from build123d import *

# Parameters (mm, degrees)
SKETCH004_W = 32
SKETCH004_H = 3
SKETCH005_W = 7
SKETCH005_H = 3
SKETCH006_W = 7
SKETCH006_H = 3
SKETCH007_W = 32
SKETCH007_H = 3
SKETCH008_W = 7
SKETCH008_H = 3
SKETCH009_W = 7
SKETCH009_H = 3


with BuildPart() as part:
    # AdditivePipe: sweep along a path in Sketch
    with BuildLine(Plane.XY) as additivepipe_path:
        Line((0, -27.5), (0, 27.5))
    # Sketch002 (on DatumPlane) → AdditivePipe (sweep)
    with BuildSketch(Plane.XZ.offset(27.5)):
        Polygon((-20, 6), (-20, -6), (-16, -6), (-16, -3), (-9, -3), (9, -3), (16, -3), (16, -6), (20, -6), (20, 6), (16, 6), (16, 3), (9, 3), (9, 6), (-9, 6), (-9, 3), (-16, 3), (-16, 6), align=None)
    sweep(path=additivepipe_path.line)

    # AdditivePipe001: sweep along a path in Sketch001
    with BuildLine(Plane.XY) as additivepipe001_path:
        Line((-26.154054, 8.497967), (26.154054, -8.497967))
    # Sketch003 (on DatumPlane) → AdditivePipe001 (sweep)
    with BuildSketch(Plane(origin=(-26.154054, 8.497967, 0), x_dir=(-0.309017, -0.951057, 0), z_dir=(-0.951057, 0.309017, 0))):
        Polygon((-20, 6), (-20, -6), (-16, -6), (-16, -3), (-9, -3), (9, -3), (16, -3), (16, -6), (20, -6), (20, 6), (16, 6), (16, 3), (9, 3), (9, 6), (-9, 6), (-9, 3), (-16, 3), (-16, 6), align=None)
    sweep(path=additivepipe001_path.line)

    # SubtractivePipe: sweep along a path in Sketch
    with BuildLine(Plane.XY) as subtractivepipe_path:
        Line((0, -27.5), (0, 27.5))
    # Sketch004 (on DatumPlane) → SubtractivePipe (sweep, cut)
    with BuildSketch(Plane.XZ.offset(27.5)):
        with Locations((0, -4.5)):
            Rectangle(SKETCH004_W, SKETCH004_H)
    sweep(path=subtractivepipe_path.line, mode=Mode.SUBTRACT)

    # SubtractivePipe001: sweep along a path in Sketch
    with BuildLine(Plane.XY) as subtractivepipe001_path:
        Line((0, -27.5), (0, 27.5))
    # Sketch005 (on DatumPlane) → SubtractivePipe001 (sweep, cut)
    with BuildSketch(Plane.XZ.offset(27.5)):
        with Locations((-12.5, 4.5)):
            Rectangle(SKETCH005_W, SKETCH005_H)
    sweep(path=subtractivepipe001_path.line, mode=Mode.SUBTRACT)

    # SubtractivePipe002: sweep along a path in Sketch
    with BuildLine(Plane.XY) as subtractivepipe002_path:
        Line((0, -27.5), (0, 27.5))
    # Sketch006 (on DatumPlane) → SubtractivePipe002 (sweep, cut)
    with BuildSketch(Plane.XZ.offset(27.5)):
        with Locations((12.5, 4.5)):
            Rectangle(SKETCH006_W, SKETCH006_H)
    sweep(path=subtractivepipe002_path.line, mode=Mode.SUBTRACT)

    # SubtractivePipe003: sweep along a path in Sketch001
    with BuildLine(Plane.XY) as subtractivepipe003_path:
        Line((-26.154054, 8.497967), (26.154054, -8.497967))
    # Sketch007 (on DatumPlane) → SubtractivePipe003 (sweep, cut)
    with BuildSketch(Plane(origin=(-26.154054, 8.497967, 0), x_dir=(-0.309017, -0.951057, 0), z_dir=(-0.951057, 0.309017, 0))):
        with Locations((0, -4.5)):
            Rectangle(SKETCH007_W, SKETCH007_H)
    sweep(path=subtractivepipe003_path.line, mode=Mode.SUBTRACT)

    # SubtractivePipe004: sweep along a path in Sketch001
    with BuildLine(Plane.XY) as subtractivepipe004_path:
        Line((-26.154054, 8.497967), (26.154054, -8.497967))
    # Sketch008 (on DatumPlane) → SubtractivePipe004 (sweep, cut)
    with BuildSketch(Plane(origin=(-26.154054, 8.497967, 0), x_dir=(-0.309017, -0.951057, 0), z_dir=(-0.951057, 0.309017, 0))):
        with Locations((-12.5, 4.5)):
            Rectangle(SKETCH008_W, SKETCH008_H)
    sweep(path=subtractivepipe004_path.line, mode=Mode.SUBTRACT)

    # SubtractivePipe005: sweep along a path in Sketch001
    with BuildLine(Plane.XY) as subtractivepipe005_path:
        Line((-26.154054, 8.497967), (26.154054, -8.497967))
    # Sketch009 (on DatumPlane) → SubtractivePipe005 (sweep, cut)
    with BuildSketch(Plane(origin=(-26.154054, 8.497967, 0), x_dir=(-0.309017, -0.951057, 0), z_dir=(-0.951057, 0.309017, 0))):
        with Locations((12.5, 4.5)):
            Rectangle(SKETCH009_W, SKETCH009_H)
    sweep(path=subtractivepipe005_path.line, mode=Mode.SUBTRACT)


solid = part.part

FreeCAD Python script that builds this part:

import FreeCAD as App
import Part
import Sketcher

V = App.Vector
Q = App.Units.Quantity


def add_polygon(sketch, points):
    """Adds a closed chain of lines whose ends are joined by coincident constraints."""
    first, n = sketch.GeometryCount, len(points)
    for a, b in zip(points, points[1:] + points[:1]):
        sketch.addGeometry(Part.LineSegment(App.Vector(*a, 0), App.Vector(*b, 0)), False)
    for i in range(n):
        sketch.addConstraint(Sketcher.Constraint("Coincident", first + i, 2, first + (i + 1) % n, 1))

doc = App.newDocument("Part")
params = doc.addObject("Spreadsheet::Sheet", "Params")
for row, (alias, value) in enumerate([
    ("sketch1_width", "4 mm"),
    ("sketch1_width2", "32 mm"),
    ("sketch1_width3", "7 mm"),
    ("sketch1_height", "12 mm"),
    ("sketch1_height2", "3 mm"),
    ("sketch2_height", "55 mm"),
    ("sketch3_width", "4 mm"),
    ("sketch3_width2", "32 mm"),
    ("sketch3_width3", "7 mm"),
    ("sketch3_height", "12 mm"),
    ("sketch3_height2", "3 mm"),
    ("sketch4_width", "54.999999 mm"),
    ("sketch5_width", "32 mm"),
    ("sketch5_height", "3 mm"),
    ("sketch6_height", "55 mm"),
    ("sketch7_width", "7 mm"),
    ("sketch7_height", "3 mm"),
    ("sketch8_height", "55 mm"),
    ("sketch9_width", "7 mm"),
    ("sketch9_height", "3 mm"),
    ("sketch10_height", "55 mm"),
    ("sketch11_width", "32 mm"),
    ("sketch11_height", "3 mm"),
    ("sketch12_width", "54.999999 mm"),
    ("sketch13_width", "7 mm"),
    ("sketch13_height", "3 mm"),
    ("sketch14_width", "54.999999 mm"),
    ("sketch15_width", "7 mm"),
    ("sketch15_height", "3 mm"),
    ("sketch16_width", "54.999999 mm"),
], start=1):
    params.set(f"A{row}", alias)
    params.set(f"B{row}", "=" + value)
    params.setAlias(f"B{row}", alias)

body = doc.addObject("PartDesign::Body", "Body")

# Sketch on XZ plane
sketch1 = doc.addObject("Sketcher::SketchObject", "Sketch")
body.addObject(sketch1)
sketch1.AttachmentSupport = (doc.XZ_Plane, [""])
sketch1.MapMode = "FlatFace"
sketch1.AttachmentOffset = App.Placement(V(0, 0, 27.5), App.Rotation())
add_polygon(sketch1, [(-20, 6), (-20, -6), (-16, -6), (-16, -3), (16, -3), (16, -6), (20, -6), (20, 6), (16, 6), (16, 3), (9, 3), (9, 6), (-9, 6), (-9, 3), (-16, 3), (-16, 6)])  # lines 0-15
sketch1.addConstraint([
    Sketcher.Constraint("Vertical", 0),
    Sketcher.Constraint("Horizontal", 1),
    Sketcher.Constraint("Vertical", 2),
    Sketcher.Constraint("Horizontal", 3),
    Sketcher.Constraint("Vertical", 4),
    Sketcher.Constraint("Horizontal", 5),
    Sketcher.Constraint("Vertical", 6),
    Sketcher.Constraint("Horizontal", 7),
    Sketcher.Constraint("Vertical", 8),
    Sketcher.Constraint("Horizontal", 9),
    Sketcher.Constraint("Vertical", 10),
    Sketcher.Constraint("Horizontal", 11),
    Sketcher.Constraint("Vertical", 12),
    Sketcher.Constraint("Horizontal", 13),
    Sketcher.Constraint("Vertical", 14),
    Sketcher.Constraint("Horizontal", 15),
    Sketcher.Constraint("Symmetric", 0, 2, 6, 2, -1, 1),
    Sketcher.Constraint("Symmetric", 2, 2, 8, 2, -1, 1),
    Sketcher.Constraint("Symmetric", 3, 2, 13, 2, -1, 1),
    Sketcher.Constraint("Symmetric", 1, 2, 4, 2, -2),
    Sketcher.Constraint("Horizontal", 7, 2, 10, 2),
    Sketcher.Constraint("Horizontal", 11, 2, 14, 2),
    Sketcher.Constraint("Equal", 9, 13),
    Sketcher.Constraint("DistanceX", 1, 1, 1, 2, Q("4 mm")),
    Sketcher.Constraint("DistanceX", 3, 1, 3, 2, Q("32 mm")),
    Sketcher.Constraint("DistanceX", 9, 2, 9, 1, Q("7 mm")),
    Sketcher.Constraint("DistanceY", 0, 2, 0, 1, Q("12 mm")),
    Sketcher.Constraint("DistanceY", 2, 1, 2, 2, Q("3 mm")),
])
sketch1.setExpression("Constraints[39]", "Params.sketch1_width")
sketch1.setExpression("Constraints[40]", "Params.sketch1_width2")
sketch1.setExpression("Constraints[41]", "Params.sketch1_width3")
sketch1.setExpression("Constraints[42]", "Params.sketch1_height")
sketch1.setExpression("Constraints[43]", "Params.sketch1_height2")

# Sketch on XY plane
sketch2 = doc.addObject("Sketcher::SketchObject", "Sketch001")
body.addObject(sketch2)
sketch2.AttachmentSupport = (doc.XY_Plane, [""])
sketch2.MapMode = "FlatFace"
sketch2.addGeometry(Part.LineSegment(V(0, -28, 0), V(0, 28, 0)), False)
sketch2.addConstraint([
    Sketcher.Constraint("Vertical", 0),
    Sketcher.Constraint("Symmetric", 0, 1, 0, 2, -1, 1),
    Sketcher.Constraint("DistanceY", 0, 1, 0, 2, Q("55 mm")),
])
sketch2.setExpression("Constraints[2]", "Params.sketch2_height")
doc.recompute()

additivepipe = doc.addObject("PartDesign::AdditivePipe", "AdditivePipe")
body.addObject(additivepipe)
additivepipe.Profile = sketch1
additivepipe.Spine = (sketch2, ["Edge1"])

# Sketch on an angled plane
sketch3 = doc.addObject("Sketcher::SketchObject", "Sketch002")
body.addObject(sketch3)
sketch3.Placement = App.Placement(V(-26.154054, 8.497967, 0), App.Rotation(V(-0.309016857, -0.951056561, 0), V(0, 0, 1), V(-0.951056561, 0.309016857, 0), "ZXY"))
add_polygon(sketch3, [(-20, 6), (-20, -6), (-16, -6), (-16, -3), (16, -3), (16, -6), (20, -6), (20, 6), (16, 6), (16, 3), (9, 3), (9, 6), (-9, 6), (-9, 3), (-16, 3), (-16, 6)])  # lines 0-15
sketch3.addConstraint([
    Sketcher.Constraint("Vertical", 0),
    Sketcher.Constraint("Horizontal", 1),
    Sketcher.Constraint("Vertical", 2),
    Sketcher.Constraint("Horizontal", 3),
    Sketcher.Constraint("Vertical", 4),
    Sketcher.Constraint("Horizontal", 5),
    Sketcher.Constraint("Vertical", 6),
    Sketcher.Constraint("Horizontal", 7),
    Sketcher.Constraint("Vertical", 8),
    Sketcher.Constraint("Horizontal", 9),
    Sketcher.Constraint("Vertical", 10),
    Sketcher.Constraint("Horizontal", 11),
    Sketcher.Constraint("Vertical", 12),
    Sketcher.Constraint("Horizontal", 13),
    Sketcher.Constraint("Vertical", 14),
    Sketcher.Constraint("Horizontal", 15),
    Sketcher.Constraint("Symmetric", 0, 2, 6, 2, -1, 1),
    Sketcher.Constraint("Symmetric", 2, 2, 8, 2, -1, 1),
    Sketcher.Constraint("Symmetric", 3, 2, 13, 2, -1, 1),
    Sketcher.Constraint("Symmetric", 1, 2, 4, 2, -2),
    Sketcher.Constraint("Horizontal", 7, 2, 10, 2),
    Sketcher.Constraint("Horizontal", 11, 2, 14, 2),
    Sketcher.Constraint("Equal", 9, 13),
    Sketcher.Constraint("DistanceX", 1, 1, 1, 2, Q("4 mm")),
    Sketcher.Constraint("DistanceX", 3, 1, 3, 2, Q("32 mm")),
    Sketcher.Constraint("DistanceX", 9, 2, 9, 1, Q("7 mm")),
    Sketcher.Constraint("DistanceY", 0, 2, 0, 1, Q("12 mm")),
    Sketcher.Constraint("DistanceY", 2, 1, 2, 2, Q("3 mm")),
])
sketch3.setExpression("Constraints[39]", "Params.sketch3_width")
sketch3.setExpression("Constraints[40]", "Params.sketch3_width2")
sketch3.setExpression("Constraints[41]", "Params.sketch3_width3")
sketch3.setExpression("Constraints[42]", "Params.sketch3_height")
sketch3.setExpression("Constraints[43]", "Params.sketch3_height2")

# Sketch on an angled plane
sketch4 = doc.addObject("Sketcher::SketchObject", "Sketch003")
body.addObject(sketch4)
sketch4.Placement = App.Placement(V(0, 0, 0), App.Rotation(V(0.951056519, -0.309016985, 0), V(0, 0, 0.999999999), V(-0.309016985, -0.951056519, 0), "ZXY"))
sketch4.addGeometry(Part.LineSegment(V(-27, 0, 0), V(27, 0, 0)), False)
sketch4.addConstraint([
    Sketcher.Constraint("Horizontal", 0),
    Sketcher.Constraint("Symmetric", 0, 1, 0, 2, -1, 1),
    Sketcher.Constraint("DistanceX", 0, 1, 0, 2, Q("54.999999 mm")),
])
sketch4.setExpression("Constraints[2]", "Params.sketch4_width")
doc.recompute()

additivepipe2 = doc.addObject("PartDesign::AdditivePipe", "AdditivePipe001")
body.addObject(additivepipe2)
additivepipe2.Profile = sketch3
additivepipe2.Spine = (sketch4, ["Edge1"])

# Sketch on XZ plane
sketch5 = doc.addObject("Sketcher::SketchObject", "Sketch004")
body.addObject(sketch5)
sketch5.AttachmentSupport = (doc.XZ_Plane, [""])
sketch5.MapMode = "FlatFace"
sketch5.AttachmentOffset = App.Placement(V(0, 0, 27.5), App.Rotation())
add_polygon(sketch5, [(-16, -3), (-16, -6), (16, -6), (16, -3)])  # lines 0-3
sketch5.addConstraint([
    Sketcher.Constraint("Vertical", 0),
    Sketcher.Constraint("Horizontal", 1),
    Sketcher.Constraint("Vertical", 2),
    Sketcher.Constraint("Horizontal", 3),
    Sketcher.Constraint("DistanceX", 1, 1, 1, 2, Q("32 mm")),
    Sketcher.Constraint("DistanceY", 0, 2, 0, 1, Q("3 mm")),
    Sketcher.Constraint("DistanceX", 0, 2, -1, 1, Q("16 mm")),
    Sketcher.Constraint("DistanceY", 0, 2, -1, 1, Q("6 mm")),
])
sketch5.setExpression("Constraints[8]", "Params.sketch5_width")
sketch5.setExpression("Constraints[9]", "Params.sketch5_height")

# Sketch on XY plane
sketch6 = doc.addObject("Sketcher::SketchObject", "Sketch005")
body.addObject(sketch6)
sketch6.AttachmentSupport = (doc.XY_Plane, [""])
sketch6.MapMode = "FlatFace"
sketch6.addGeometry(Part.LineSegment(V(0, -28, 0), V(0, 28, 0)), False)
sketch6.addConstraint([
    Sketcher.Constraint("Vertical", 0),
    Sketcher.Constraint("Symmetric", 0, 1, 0, 2, -1, 1),
    Sketcher.Constraint("DistanceY", 0, 1, 0, 2, Q("55 mm")),
])
sketch6.setExpression("Constraints[2]", "Params.sketch6_height")
doc.recompute()

subtractivepipe = doc.addObject("PartDesign::SubtractivePipe", "SubtractivePipe")
body.addObject(subtractivepipe)
subtractivepipe.Profile = sketch5
subtractivepipe.Spine = (sketch6, ["Edge1"])

# Sketch on XZ plane
sketch7 = doc.addObject("Sketcher::SketchObject", "Sketch006")
body.addObject(sketch7)
sketch7.AttachmentSupport = (doc.XZ_Plane, [""])
sketch7.MapMode = "FlatFace"
sketch7.AttachmentOffset = App.Placement(V(0, 0, 27.5), App.Rotation())
add_polygon(sketch7, [(-16, 6), (-16, 3), (-9, 3), (-9, 6)])  # lines 0-3
sketch7.addConstraint([
    Sketcher.Constraint("Vertical", 0),
    Sketcher.Constraint("Horizontal", 1),
    Sketcher.Constraint("Vertical", 2),
    Sketcher.Constraint("Horizontal", 3),
    Sketcher.Constraint("DistanceX", 1, 1, 1, 2, Q("7 mm")),
    Sketcher.Constraint("DistanceY", 0, 2, 0, 1, Q("3 mm")),
    Sketcher.Constraint("DistanceX", 0, 2, -1, 1, Q("16 mm")),
    Sketcher.Constraint("DistanceY", -1, 1, 0, 2, Q("3 mm")),
])
sketch7.setExpression("Constraints[8]", "Params.sketch7_width")
sketch7.setExpression("Constraints[9]", "Params.sketch7_height")

# Sketch on XY plane
sketch8 = doc.addObject("Sketcher::SketchObject", "Sketch007")
body.addObject(sketch8)
sketch8.AttachmentSupport = (doc.XY_Plane, [""])
sketch8.MapMode = "FlatFace"
sketch8.addGeometry(Part.LineSegment(V(0, -28, 0), V(0, 28, 0)), False)
sketch8.addConstraint([
    Sketcher.Constraint("Vertical", 0),
    Sketcher.Constraint("Symmetric", 0, 1, 0, 2, -1, 1),
    Sketcher.Constraint("DistanceY", 0, 1, 0, 2, Q("55 mm")),
])
sketch8.setExpression("Constraints[2]", "Params.sketch8_height")
doc.recompute()

subtractivepipe2 = doc.addObject("PartDesign::SubtractivePipe", "SubtractivePipe001")
body.addObject(subtractivepipe2)
subtractivepipe2.Profile = sketch7
subtractivepipe2.Spine = (sketch8, ["Edge1"])

# Sketch on XZ plane
sketch9 = doc.addObject("Sketcher::SketchObject", "Sketch008")
body.addObject(sketch9)
sketch9.AttachmentSupport = (doc.XZ_Plane, [""])
sketch9.MapMode = "FlatFace"
sketch9.AttachmentOffset = App.Placement(V(0, 0, 27.5), App.Rotation())
add_polygon(sketch9, [(9, 6), (9, 3), (16, 3), (16, 6)])  # lines 0-3
sketch9.addConstraint([
    Sketcher.Constraint("Vertical", 0),
    Sketcher.Constraint("Horizontal", 1),
    Sketcher.Constraint("Vertical", 2),
    Sketcher.Constraint("Horizontal", 3),
    Sketcher.Constraint("DistanceX", 1, 1, 1, 2, Q("7 mm")),
    Sketcher.Constraint("DistanceY", 0, 2, 0, 1, Q("3 mm")),
    Sketcher.Constraint("DistanceX", -1, 1, 0, 2, Q("9 mm")),
    Sketcher.Constraint("DistanceY", -1, 1, 0, 2, Q("3 mm")),
])
sketch9.setExpression("Constraints[8]", "Params.sketch9_width")
sketch9.setExpression("Constraints[9]", "Params.sketch9_height")

# Sketch on XY plane
sketch10 = doc.addObject("Sketcher::SketchObject", "Sketch009")
body.addObject(sketch10)
sketch10.AttachmentSupport = (doc.XY_Plane, [""])
sketch10.MapMode = "FlatFace"
sketch10.addGeometry(Part.LineSegment(V(0, -28, 0), V(0, 28, 0)), False)
sketch10.addConstraint([
    Sketcher.Constraint("Vertical", 0),
    Sketcher.Constraint("Symmetric", 0, 1, 0, 2, -1, 1),
    Sketcher.Constraint("DistanceY", 0, 1, 0, 2, Q("55 mm")),
])
sketch10.setExpression("Constraints[2]", "Params.sketch10_height")
doc.recompute()

subtractivepipe3 = doc.addObject("PartDesign::SubtractivePipe", "SubtractivePipe002")
body.addObject(subtractivepipe3)
subtractivepipe3.Profile = sketch9
subtractivepipe3.Spine = (sketch10, ["Edge1"])

# Sketch on an angled plane
sketch11 = doc.addObject("Sketcher::SketchObject", "Sketch010")
body.addObject(sketch11)
sketch11.Placement = App.Placement(V(-26.154054, 8.497967, 0), App.Rotation(V(-0.309016857, -0.951056561, 0), V(0, 0, 1), V(-0.951056561, 0.309016857, 0), "ZXY"))
add_polygon(sketch11, [(-16, -3), (-16, -6), (16, -6), (16, -3)])  # lines 0-3
sketch11.addConstraint([
    Sketcher.Constraint("Vertical", 0),
    Sketcher.Constraint("Horizontal", 1),
    Sketcher.Constraint("Vertical", 2),
    Sketcher.Constraint("Horizontal", 3),
    Sketcher.Constraint("DistanceX", 1, 1, 1, 2, Q("32 mm")),
    Sketcher.Constraint("DistanceY", 0, 2, 0, 1, Q("3 mm")),
    Sketcher.Constraint("DistanceX", 0, 2, -1, 1, Q("16 mm")),
    Sketcher.Constraint("DistanceY", 0, 2, -1, 1, Q("6 mm")),
])
sketch11.setExpression("Constraints[8]", "Params.sketch11_width")
sketch11.setExpression("Constraints[9]", "Params.sketch11_height")

# Sketch on an angled plane
sketch12 = doc.addObject("Sketcher::SketchObject", "Sketch011")
body.addObject(sketch12)
sketch12.Placement = App.Placement(V(0, 0, 0), App.Rotation(V(0.951056519, -0.309016985, 0), V(0, 0, 0.999999999), V(-0.309016985, -0.951056519, 0), "ZXY"))
sketch12.addGeometry(Part.LineSegment(V(-27, 0, 0), V(27, 0, 0)), False)
sketch12.addConstraint([
    Sketcher.Constraint("Horizontal", 0),
    Sketcher.Constraint("Symmetric", 0, 1, 0, 2, -1, 1),
    Sketcher.Constraint("DistanceX", 0, 1, 0, 2, Q("54.999999 mm")),
])
sketch12.setExpression("Constraints[2]", "Params.sketch12_width")
doc.recompute()

subtractivepipe4 = doc.addObject("PartDesign::SubtractivePipe", "SubtractivePipe003")
body.addObject(subtractivepipe4)
subtractivepipe4.Profile = sketch11
subtractivepipe4.Spine = (sketch12, ["Edge1"])

# Sketch on an angled plane
sketch13 = doc.addObject("Sketcher::SketchObject", "Sketch012")
body.addObject(sketch13)
sketch13.Placement = App.Placement(V(-26.154054, 8.497967, 0), App.Rotation(V(-0.309016857, -0.951056561, 0), V(0, 0, 1), V(-0.951056561, 0.309016857, 0), "ZXY"))
add_polygon(sketch13, [(-16, 6), (-16, 3), (-9, 3), (-9, 6)])  # lines 0-3
sketch13.addConstraint([
    Sketcher.Constraint("Vertical", 0),
    Sketcher.Constraint("Horizontal", 1),
    Sketcher.Constraint("Vertical", 2),
    Sketcher.Constraint("Horizontal", 3),
    Sketcher.Constraint("DistanceX", 1, 1, 1, 2, Q("7 mm")),
    Sketcher.Constraint("DistanceY", 0, 2, 0, 1, Q("3 mm")),
    Sketcher.Constraint("DistanceX", 0, 2, -1, 1, Q("16 mm")),
    Sketcher.Constraint("DistanceY", -1, 1, 0, 2, Q("3 mm")),
])
sketch13.setExpression("Constraints[8]", "Params.sketch13_width")
sketch13.setExpression("Constraints[9]", "Params.sketch13_height")

# Sketch on an angled plane
sketch14 = doc.addObject("Sketcher::SketchObject", "Sketch013")
body.addObject(sketch14)
sketch14.Placement = App.Placement(V(0, 0, 0), App.Rotation(V(0.951056519, -0.309016985, 0), V(0, 0, 0.999999999), V(-0.309016985, -0.951056519, 0), "ZXY"))
sketch14.addGeometry(Part.LineSegment(V(-27, 0, 0), V(27, 0, 0)), False)
sketch14.addConstraint([
    Sketcher.Constraint("Horizontal", 0),
    Sketcher.Constraint("Symmetric", 0, 1, 0, 2, -1, 1),
    Sketcher.Constraint("DistanceX", 0, 1, 0, 2, Q("54.999999 mm")),
])
sketch14.setExpression("Constraints[2]", "Params.sketch14_width")
doc.recompute()

subtractivepipe5 = doc.addObject("PartDesign::SubtractivePipe", "SubtractivePipe004")
body.addObject(subtractivepipe5)
subtractivepipe5.Profile = sketch13
subtractivepipe5.Spine = (sketch14, ["Edge1"])

# Sketch on an angled plane
sketch15 = doc.addObject("Sketcher::SketchObject", "Sketch014")
body.addObject(sketch15)
sketch15.Placement = App.Placement(V(-26.154054, 8.497967, 0), App.Rotation(V(-0.309016857, -0.951056561, 0), V(0, 0, 1), V(-0.951056561, 0.309016857, 0), "ZXY"))
add_polygon(sketch15, [(9, 6), (9, 3), (16, 3), (16, 6)])  # lines 0-3
sketch15.addConstraint([
    Sketcher.Constraint("Vertical", 0),
    Sketcher.Constraint("Horizontal", 1),
    Sketcher.Constraint("Vertical", 2),
    Sketcher.Constraint("Horizontal", 3),
    Sketcher.Constraint("DistanceX", 1, 1, 1, 2, Q("7 mm")),
    Sketcher.Constraint("DistanceY", 0, 2, 0, 1, Q("3 mm")),
    Sketcher.Constraint("DistanceX", -1, 1, 0, 2, Q("9 mm")),
    Sketcher.Constraint("DistanceY", -1, 1, 0, 2, Q("3 mm")),
])
sketch15.setExpression("Constraints[8]", "Params.sketch15_width")
sketch15.setExpression("Constraints[9]", "Params.sketch15_height")

# Sketch on an angled plane
sketch16 = doc.addObject("Sketcher::SketchObject", "Sketch015")
body.addObject(sketch16)
sketch16.Placement = App.Placement(V(0, 0, 0), App.Rotation(V(0.951056519, -0.309016985, 0), V(0, 0, 0.999999999), V(-0.309016985, -0.951056519, 0), "ZXY"))
sketch16.addGeometry(Part.LineSegment(V(-27, 0, 0), V(27, 0, 0)), False)
sketch16.addConstraint([
    Sketcher.Constraint("Horizontal", 0),
    Sketcher.Constraint("Symmetric", 0, 1, 0, 2, -1, 1),
    Sketcher.Constraint("DistanceX", 0, 1, 0, 2, Q("54.999999 mm")),
])
sketch16.setExpression("Constraints[2]", "Params.sketch16_width")
doc.recompute()

subtractivepipe6 = doc.addObject("PartDesign::SubtractivePipe", "SubtractivePipe005")
body.addObject(subtractivepipe6)
subtractivepipe6.Profile = sketch15
subtractivepipe6.Spine = (sketch16, ["Edge1"])

doc.recompute()
